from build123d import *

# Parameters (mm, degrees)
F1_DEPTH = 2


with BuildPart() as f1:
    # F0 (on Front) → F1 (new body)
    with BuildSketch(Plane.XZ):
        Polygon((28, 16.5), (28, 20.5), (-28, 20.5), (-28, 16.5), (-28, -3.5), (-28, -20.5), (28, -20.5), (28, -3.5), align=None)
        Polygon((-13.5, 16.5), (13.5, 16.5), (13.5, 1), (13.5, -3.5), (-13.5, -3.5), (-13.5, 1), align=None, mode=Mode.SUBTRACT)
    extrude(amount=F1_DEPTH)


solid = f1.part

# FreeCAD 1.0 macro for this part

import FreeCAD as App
import Part
import Sketcher


def add_polygon(sketch, points):
    """Adds a closed chain of lines whose ends are joined by coincident constraints."""
    first, n = sketch.GeometryCount, len(points)
    for a, b in zip(points, points[1:] + points[:1]):
        sketch.addGeometry(Part.LineSegment(App.Vector(*a, 0), App.Vector(*b, 0)), False)
    for i in range(n):
        sketch.addConstraint(Sketcher.Constraint("Coincident", first + i, 2, first + (i + 1) % n, 1))

doc = App.newDocument("Part")
body = doc.addObject("PartDesign::Body", "Body")

# Sketch on XZ plane
sketch1 = doc.addObject("Sketcher::SketchObject", "Sketch")
body.addObject(sketch1)
sketch1.AttachmentSupport = (doc.XZ_Plane, [""])
sketch1.MapMode = "FlatFace"
add_polygon(sketch1, [(28, 20), (-28, 20), (-28, -20), (28, -20)])  # lines 0-3
add_polygon(sketch1, [(-14, -4), (-14, 16), (14, 16), (14, -4)])  # lines 4-7
sketch1.addConstraint(Sketcher.Constraint("Horizontal", 0))
sketch1.addConstraint(Sketcher.Constraint("Vertical", 1))
sketch1.addConstraint(Sketcher.Constraint("Horizontal", 2))
sketch1.addConstraint(Sketcher.Constraint("Vertical", 3))
sketch1.addConstraint(Sketcher.Constraint("Vertical", 4))
sketch1.addConstraint(Sketcher.Constraint("Horizontal", 5))
sketch1.addConstraint(Sketcher.Constraint("Vertical", 6))
sketch1.addConstraint(Sketcher.Constraint("Horizontal", 7))
sketch1.addConstraint(Sketcher.Constraint("Symmetric", 0, 2, 2, 2, -1, 1))
sketch1.addConstraint(Sketcher.Constraint("DistanceX", 0, 2, 0, 1, 56.0))
sketch1.addConstraint(Sketcher.Constraint("DistanceX", 5, 1, 5, 2, 27.0))
sketch1.addConstraint(Sketcher.Constraint("DistanceY", 1, 2, 1, 1, 41.0))
sketch1.addConstraint(Sketcher.Constraint("DistanceY", 4, 1, 4, 2, 20.0))
sketch1.addConstraint(Sketcher.Constraint("DistanceY", 4, 2, 0, 2, 4.0))
sketch1.addConstraint(Sketcher.Constraint("DistanceX", 4, 2, -1, 1, 13.5))
pad1 = doc.addObject("PartDesign::Pad", "Pad")
body.addObject(pad1)
pad1.Profile = sketch1
pad1.Length = 2

doc.recompute()
